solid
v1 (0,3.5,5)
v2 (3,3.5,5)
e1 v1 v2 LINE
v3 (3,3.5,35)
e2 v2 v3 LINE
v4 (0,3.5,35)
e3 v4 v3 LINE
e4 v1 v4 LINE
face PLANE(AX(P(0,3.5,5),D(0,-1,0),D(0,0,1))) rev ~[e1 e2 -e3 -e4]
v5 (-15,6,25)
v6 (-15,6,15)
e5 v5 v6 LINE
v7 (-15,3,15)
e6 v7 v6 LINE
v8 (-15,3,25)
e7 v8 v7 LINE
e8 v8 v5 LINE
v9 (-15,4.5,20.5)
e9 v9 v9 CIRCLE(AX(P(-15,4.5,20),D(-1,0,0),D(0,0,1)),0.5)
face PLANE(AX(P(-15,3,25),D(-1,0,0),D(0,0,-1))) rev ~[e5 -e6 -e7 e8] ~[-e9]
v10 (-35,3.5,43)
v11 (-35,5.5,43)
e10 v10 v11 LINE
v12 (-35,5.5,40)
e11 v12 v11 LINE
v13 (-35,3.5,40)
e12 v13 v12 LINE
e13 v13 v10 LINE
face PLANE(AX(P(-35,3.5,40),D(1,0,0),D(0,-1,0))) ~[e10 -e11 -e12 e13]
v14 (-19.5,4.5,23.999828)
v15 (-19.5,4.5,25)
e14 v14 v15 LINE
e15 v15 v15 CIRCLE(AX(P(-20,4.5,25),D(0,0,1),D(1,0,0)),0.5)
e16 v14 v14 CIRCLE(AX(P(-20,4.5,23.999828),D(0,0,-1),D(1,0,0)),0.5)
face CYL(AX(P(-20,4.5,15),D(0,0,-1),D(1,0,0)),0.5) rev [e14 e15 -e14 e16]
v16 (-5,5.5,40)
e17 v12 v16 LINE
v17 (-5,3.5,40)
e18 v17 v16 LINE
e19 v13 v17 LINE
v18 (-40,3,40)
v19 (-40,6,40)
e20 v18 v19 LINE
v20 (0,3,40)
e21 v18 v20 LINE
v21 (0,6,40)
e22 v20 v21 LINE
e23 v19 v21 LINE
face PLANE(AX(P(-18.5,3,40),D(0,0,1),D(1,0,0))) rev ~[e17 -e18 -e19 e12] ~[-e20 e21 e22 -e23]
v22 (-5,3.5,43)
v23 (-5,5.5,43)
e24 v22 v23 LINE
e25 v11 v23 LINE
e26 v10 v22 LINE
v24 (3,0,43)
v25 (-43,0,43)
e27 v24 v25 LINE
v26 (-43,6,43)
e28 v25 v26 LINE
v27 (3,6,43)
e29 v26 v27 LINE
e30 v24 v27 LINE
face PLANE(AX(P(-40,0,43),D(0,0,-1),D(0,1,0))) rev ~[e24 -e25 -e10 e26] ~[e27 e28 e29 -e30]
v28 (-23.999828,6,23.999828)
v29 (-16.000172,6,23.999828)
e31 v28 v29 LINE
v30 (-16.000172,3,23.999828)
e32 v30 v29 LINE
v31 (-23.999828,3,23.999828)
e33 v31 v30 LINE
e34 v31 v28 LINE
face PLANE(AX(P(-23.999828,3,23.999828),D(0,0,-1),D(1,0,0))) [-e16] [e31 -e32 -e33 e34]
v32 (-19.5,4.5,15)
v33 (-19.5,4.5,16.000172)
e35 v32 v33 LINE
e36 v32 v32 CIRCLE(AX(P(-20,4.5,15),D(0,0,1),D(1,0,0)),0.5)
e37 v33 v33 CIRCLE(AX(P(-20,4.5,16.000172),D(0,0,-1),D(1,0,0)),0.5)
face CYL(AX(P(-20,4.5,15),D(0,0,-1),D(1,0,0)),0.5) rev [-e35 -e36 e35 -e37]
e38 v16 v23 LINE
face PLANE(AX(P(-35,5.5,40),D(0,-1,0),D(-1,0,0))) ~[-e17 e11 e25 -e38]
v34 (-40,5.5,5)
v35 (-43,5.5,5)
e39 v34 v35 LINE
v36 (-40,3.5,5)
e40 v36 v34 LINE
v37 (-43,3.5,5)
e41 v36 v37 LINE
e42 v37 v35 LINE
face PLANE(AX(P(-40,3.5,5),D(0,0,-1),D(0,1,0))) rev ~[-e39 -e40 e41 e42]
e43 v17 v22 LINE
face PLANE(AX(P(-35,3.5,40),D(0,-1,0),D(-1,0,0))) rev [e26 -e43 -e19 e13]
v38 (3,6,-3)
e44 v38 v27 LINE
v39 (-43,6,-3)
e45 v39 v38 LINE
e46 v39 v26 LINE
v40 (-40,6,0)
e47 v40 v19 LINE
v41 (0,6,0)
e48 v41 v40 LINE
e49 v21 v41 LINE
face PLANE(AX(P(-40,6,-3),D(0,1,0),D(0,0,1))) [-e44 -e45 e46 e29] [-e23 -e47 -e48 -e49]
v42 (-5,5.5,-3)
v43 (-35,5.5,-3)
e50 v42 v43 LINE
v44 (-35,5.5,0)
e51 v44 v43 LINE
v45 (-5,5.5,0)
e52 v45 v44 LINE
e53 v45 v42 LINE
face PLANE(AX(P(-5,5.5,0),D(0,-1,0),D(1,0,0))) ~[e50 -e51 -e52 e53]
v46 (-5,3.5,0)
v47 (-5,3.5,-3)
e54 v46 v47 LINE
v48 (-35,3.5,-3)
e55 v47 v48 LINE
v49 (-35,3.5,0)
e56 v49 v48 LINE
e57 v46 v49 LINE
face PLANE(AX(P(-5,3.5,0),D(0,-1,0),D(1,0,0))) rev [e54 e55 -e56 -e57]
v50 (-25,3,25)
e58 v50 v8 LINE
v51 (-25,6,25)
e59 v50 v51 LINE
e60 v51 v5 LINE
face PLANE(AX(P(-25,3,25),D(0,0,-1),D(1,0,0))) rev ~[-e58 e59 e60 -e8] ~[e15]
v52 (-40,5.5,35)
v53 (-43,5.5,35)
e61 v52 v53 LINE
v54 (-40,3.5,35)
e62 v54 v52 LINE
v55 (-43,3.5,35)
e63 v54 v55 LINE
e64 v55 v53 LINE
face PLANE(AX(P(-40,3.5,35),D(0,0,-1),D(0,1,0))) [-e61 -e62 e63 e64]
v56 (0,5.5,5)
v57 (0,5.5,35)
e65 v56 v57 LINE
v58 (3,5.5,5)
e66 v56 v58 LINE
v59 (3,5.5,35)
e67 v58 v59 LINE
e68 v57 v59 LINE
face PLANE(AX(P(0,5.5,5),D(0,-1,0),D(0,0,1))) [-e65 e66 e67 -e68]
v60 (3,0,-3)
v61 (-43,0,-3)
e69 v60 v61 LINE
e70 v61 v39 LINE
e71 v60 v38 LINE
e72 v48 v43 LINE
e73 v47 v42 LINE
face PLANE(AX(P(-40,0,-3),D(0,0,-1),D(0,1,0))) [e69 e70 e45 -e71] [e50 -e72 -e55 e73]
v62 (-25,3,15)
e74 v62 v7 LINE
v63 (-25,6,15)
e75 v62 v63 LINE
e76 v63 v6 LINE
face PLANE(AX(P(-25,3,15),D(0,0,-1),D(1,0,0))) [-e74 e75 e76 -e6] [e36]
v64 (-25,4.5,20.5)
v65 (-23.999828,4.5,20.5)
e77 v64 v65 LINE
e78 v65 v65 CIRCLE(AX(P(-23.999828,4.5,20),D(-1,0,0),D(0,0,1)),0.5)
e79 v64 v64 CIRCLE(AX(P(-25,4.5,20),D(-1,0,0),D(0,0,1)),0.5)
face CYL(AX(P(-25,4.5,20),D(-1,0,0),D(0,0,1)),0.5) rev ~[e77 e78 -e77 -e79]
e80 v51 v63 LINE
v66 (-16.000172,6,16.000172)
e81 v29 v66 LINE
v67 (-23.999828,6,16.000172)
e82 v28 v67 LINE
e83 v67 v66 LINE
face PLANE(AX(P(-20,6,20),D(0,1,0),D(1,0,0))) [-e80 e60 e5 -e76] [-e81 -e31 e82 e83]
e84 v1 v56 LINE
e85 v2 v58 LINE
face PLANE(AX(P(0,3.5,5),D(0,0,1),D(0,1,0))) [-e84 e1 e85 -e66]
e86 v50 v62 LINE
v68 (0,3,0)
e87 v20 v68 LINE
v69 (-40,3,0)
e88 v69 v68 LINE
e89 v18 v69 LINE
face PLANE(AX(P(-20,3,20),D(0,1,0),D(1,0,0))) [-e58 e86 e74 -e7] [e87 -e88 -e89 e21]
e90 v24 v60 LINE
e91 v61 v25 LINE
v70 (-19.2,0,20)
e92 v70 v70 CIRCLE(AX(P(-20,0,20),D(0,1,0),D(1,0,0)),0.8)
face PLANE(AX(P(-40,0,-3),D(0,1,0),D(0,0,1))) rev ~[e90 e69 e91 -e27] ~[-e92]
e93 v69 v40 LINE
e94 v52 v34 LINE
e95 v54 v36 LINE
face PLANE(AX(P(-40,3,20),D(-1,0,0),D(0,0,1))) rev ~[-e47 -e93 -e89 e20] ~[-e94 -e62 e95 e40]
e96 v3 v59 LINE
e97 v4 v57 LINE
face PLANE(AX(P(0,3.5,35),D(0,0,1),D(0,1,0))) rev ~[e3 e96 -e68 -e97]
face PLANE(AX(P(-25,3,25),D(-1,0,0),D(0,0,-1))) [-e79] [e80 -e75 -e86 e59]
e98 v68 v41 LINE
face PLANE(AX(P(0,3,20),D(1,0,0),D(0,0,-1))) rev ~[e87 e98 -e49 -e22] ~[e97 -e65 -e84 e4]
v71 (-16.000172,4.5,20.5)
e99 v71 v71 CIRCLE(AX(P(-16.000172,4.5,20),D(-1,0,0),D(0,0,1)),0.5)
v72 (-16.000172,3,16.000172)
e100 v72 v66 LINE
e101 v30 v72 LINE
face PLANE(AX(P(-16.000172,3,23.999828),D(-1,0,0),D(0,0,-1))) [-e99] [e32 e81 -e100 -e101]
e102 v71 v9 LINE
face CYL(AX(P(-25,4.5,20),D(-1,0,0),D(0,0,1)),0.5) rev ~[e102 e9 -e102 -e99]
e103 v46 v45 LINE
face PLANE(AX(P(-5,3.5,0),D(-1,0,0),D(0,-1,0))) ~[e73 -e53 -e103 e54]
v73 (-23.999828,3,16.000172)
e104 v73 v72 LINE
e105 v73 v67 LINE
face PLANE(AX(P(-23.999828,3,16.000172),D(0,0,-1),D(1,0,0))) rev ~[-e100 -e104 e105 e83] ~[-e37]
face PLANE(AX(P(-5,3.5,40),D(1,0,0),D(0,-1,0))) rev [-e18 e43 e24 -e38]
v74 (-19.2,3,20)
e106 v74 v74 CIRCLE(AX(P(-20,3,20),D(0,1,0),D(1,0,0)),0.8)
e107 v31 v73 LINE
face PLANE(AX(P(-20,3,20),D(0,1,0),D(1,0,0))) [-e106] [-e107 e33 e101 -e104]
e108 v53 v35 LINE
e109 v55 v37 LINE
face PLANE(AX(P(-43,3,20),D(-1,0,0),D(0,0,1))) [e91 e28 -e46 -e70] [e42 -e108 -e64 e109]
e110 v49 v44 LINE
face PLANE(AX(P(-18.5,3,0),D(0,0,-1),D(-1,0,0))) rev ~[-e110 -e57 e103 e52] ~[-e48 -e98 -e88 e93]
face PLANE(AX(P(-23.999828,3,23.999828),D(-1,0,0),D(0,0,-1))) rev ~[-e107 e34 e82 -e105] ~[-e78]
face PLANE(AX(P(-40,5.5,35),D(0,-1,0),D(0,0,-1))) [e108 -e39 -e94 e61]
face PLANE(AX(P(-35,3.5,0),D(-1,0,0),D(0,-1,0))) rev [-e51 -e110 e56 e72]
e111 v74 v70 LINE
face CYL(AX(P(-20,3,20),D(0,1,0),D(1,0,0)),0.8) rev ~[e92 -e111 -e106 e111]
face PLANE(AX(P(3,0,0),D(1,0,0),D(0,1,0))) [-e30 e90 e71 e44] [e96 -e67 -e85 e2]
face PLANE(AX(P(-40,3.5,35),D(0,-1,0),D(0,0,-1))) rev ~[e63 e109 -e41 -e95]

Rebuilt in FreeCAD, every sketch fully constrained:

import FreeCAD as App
import Part
import Sketcher

V = App.Vector


def add_polygon(sketch, points):
    """Adds a closed chain of lines whose ends are joined by coincident constraints."""
    first, n = sketch.GeometryCount, len(points)
    for a, b in zip(points, points[1:] + points[:1]):
        sketch.addGeometry(Part.LineSegment(App.Vector(*a, 0), App.Vector(*b, 0)), False)
    for i in range(n):
        sketch.addConstraint(Sketcher.Constraint("Coincident", first + i, 2, first + (i + 1) % n, 1))

doc = App.newDocument("Part")
params = doc.addObject("Spreadsheet::Sheet", "Params")
for row, (alias, value) in enumerate([
    ("sketch1_width", "40 mm"),
    ("pad1_length", "3 mm"),
    ("sketch2_width", "6 mm"),
    ("sketch2_height", "40 mm"),
    ("pad2_length", "3 mm"),
    ("sketch3_width", "43 mm"),
    ("sketch3_height", "6 mm"),
    ("pad3_length", "3 mm"),
    ("sketch4_width", "43 mm"),
    ("sketch4_height", "6 mm"),
    ("pad4_length", "3 mm"),
    ("sketch5_width", "6 mm"),
    ("sketch5_height", "46 mm"),
    ("pad5_length", "3 mm"),
    ("sketch6_width", "2 mm"),
    ("sketch6_height", "30 mm"),
    ("pocket1_length", "3 mm"),
    ("sketch7_width", "2 mm"),
    ("sketch7_height", "30 mm"),
    ("pocket2_length", "3 mm"),
    ("sketch8_width", "10 mm"),
    ("pad6_length", "3 mm"),
    ("sketch9_diameter", "1.6 mm"),
    ("pocket3_length", "3 mm"),
    ("sketch10_diameter", "1 mm"),
    ("pocket4_length", "10 mm"),
], start=1):
    params.set(f"A{row}", alias)
    params.set(f"B{row}", "=" + value)
    params.setAlias(f"B{row}", alias)

body = doc.addObject("PartDesign::Body", "Body")

sketch1 = body.newObject("Sketcher::SketchObject", "Sketch")
sketch1.AttachmentSupport = (doc.getObject("XZ_Plane"), [""])
sketch1.MapMode = "FlatFace"
add_polygon(sketch1, [(-40, 0), (-40, 40), (0, 40), (0, 0)])
sketch1.addConstraint([
    Sketcher.Constraint("Vertical", 0),
    Sketcher.Constraint("Horizontal", 1),
    Sketcher.Constraint("Vertical", 2),
    Sketcher.Constraint("Horizontal", 3),
    Sketcher.Constraint("Coincident", 2, 2, -1, 1),
    Sketcher.Constraint("Equal", 3, 0),
    Sketcher.Constraint("DistanceX", 1, 1, 1, 2, 40.0),
])
sketch1.setExpression("Constraints[10]", "Params.sketch1_width")
pad1 = body.newObject("PartDesign::Pad", "Pad")
pad1.Profile = sketch1
pad1.setExpression("Length", "Params.pad1_length")
pad1.Reversed = True
body2 = doc.addObject("PartDesign::Body", "Body001")

sketch2 = body2.newObject("Sketcher::SketchObject", "Sketch001")
sketch2.AttachmentSupport = (doc.getObject("YZ_Plane001"), [""])
sketch2.MapMode = "FlatFace"
add_polygon(sketch2, [(6, 40), (0, 40), (0, 0), (6, 0)])
sketch2.addConstraint([
    Sketcher.Constraint("Horizontal", 0),
    Sketcher.Constraint("Vertical", 1),
    Sketcher.Constraint("Horizontal", 2),
    Sketcher.Constraint("Vertical", 3),
    Sketcher.Constraint("Coincident", 1, 2, -1, 1),
    Sketcher.Constraint("DistanceX", 0, 2, 0, 1, 6.0),
    Sketcher.Constraint("DistanceY", 1, 2, 1, 1, 40.0),
])
sketch2.setExpression("Constraints[9]", "Params.sketch2_width")
sketch2.setExpression("Constraints[10]", "Params.sketch2_height")
pad2 = body2.newObject("PartDesign::Pad", "Pad001")
pad2.Profile = sketch2
pad2.setExpression("Length", "Params.pad2_length")
doc.recompute()

boolean = body.newObject("PartDesign::Boolean", "Boolean")
boolean.Type = "Fuse"
boolean.addObjects([body2])

sketch3 = body.newObject("Sketcher::SketchObject", "Sketch002")
sketch3.AttachmentSupport = (doc.getObject("XY_Plane"), [""])
sketch3.MapMode = "FlatFace"
sketch3.AttachmentOffset = App.Placement(V(0, 0, 40), App.Rotation())
add_polygon(sketch3, [(-40, 6), (-40, 0), (3, 0), (3, 6)])
sketch3.addConstraint([
    Sketcher.Constraint("Vertical", 0),
    Sketcher.Constraint("Horizontal", 1),
    Sketcher.Constraint("Vertical", 2),
    Sketcher.Constraint("Horizontal", 3),
    Sketcher.Constraint("PointOnObject", 0, 2, -1),
    Sketcher.Constraint("DistanceX", 1, 1, 1, 2, 43.0),
    Sketcher.Constraint("DistanceY", 0, 2, 0, 1, 6.0),
    Sketcher.Constraint("DistanceX", 0, 2, -1, 1, 40.0),
])
sketch3.setExpression("Constraints[9]", "Params.sketch3_width")
sketch3.setExpression("Constraints[10]", "Params.sketch3_height")
pad3 = body.newObject("PartDesign::Pad", "Pad002")
pad3.Profile = sketch3
pad3.setExpression("Length", "Params.pad3_length")

sketch4 = body.newObject("Sketcher::SketchObject", "Sketch003")
sketch4.AttachmentSupport = (doc.getObject("XY_Plane"), [""])
sketch4.MapMode = "FlatFace"
add_polygon(sketch4, [(3, 6), (3, 0), (-40, 0), (-40, 6)])
sketch4.addConstraint([
    Sketcher.Constraint("Vertical", 0),
    Sketcher.Constraint("Horizontal", 1),
    Sketcher.Constraint("Vertical", 2),
    Sketcher.Constraint("Horizontal", 3),
    Sketcher.Constraint("PointOnObject", 0, 2, -1),
    Sketcher.Constraint("DistanceX", 1, 2, 1, 1, 43.0),
    Sketcher.Constraint("DistanceY", 0, 2, 0, 1, 6.0),
    Sketcher.Constraint("DistanceX", -1, 1, 0, 2, 3.0),
])
sketch4.setExpression("Constraints[9]", "Params.sketch4_width")
sketch4.setExpression("Constraints[10]", "Params.sketch4_height")
pad4 = body.newObject("PartDesign::Pad", "Pad003")
pad4.Profile = sketch4
pad4.setExpression("Length", "Params.pad4_length")
pad4.Reversed = True

sketch5 = body.newObject("Sketcher::SketchObject", "Sketch004")
sketch5.AttachmentSupport = (doc.getObject("YZ_Plane"), [""])
sketch5.MapMode = "FlatFace"
sketch5.AttachmentOffset = App.Placement(V(0, 0, -40), App.Rotation())
add_polygon(sketch5, [(6, -3), (0, -3), (0, 43), (6, 43)])
sketch5.addConstraint([
    Sketcher.Constraint("Horizontal", 0),
    Sketcher.Constraint("Vertical", 1),
    Sketcher.Constraint("Horizontal", 2),
    Sketcher.Constraint("Vertical", 3),
    Sketcher.Constraint("PointOnObject", 0, 2, -2),
    Sketcher.Constraint("DistanceX", 0, 2, 0, 1, 6.0),
    Sketcher.Constraint("DistanceY", 1, 1, 1, 2, 46.0),
    Sketcher.Constraint("DistanceY", 0, 2, -1, 1, 3.0),
])
sketch5.setExpression("Constraints[9]", "Params.sketch5_width")
sketch5.setExpression("Constraints[10]", "Params.sketch5_height")
pad5 = body.newObject("PartDesign::Pad", "Pad004")
pad5.Profile = sketch5
pad5.setExpression("Length", "Params.pad5_length")
pad5.Reversed = True

sketch6 = body.newObject("Sketcher::SketchObject", "Sketch005")
sketch6.AttachmentSupport = (doc.getObject("YZ_Plane"), [""])
sketch6.MapMode = "FlatFace"
add_polygon(sketch6, [(5.5, 5), (3.5, 5), (3.5, 35), (5.5, 35)])
sketch6.addConstraint([
    Sketcher.Constraint("Horizontal", 0),
    Sketcher.Constraint("Vertical", 1),
    Sketcher.Constraint("Horizontal", 2),
    Sketcher.Constraint("Vertical", 3),
    Sketcher.Constraint("DistanceX", 0, 2, 0, 1, 2.0),
    Sketcher.Constraint("DistanceY", 1, 1, 1, 2, 30.0),
    Sketcher.Constraint("DistanceY", -1, 1, 0, 2, 5.0),
    Sketcher.Constraint("DistanceX", -1, 1, 0, 2, 3.5),
])
sketch6.setExpression("Constraints[8]", "Params.sketch6_width")
sketch6.setExpression("Constraints[9]", "Params.sketch6_height")
pocket1 = body.newObject("PartDesign::Pocket", "Pocket")
pocket1.Profile = sketch6
pocket1.setExpression("Length", "Params.pocket1_length")
pocket1.Reversed = True
doc.recompute()

datumplane = body.newObject("PartDesign::Plane", "DatumPlane")
datumplane.Placement = App.Placement(V(0, 0, 0), App.Rotation(V(-0.707106781, 0, 0.707106781), V(0, -1, 0), V(0.707106781, 0, 0.707106781), "ZXY"))
mirrored = body.newObject("PartDesign::Mirrored", "Mirrored")
mirrored.Originals = [pocket1]
mirrored.MirrorPlane = (datumplane, [""])
body.Tip = mirrored
doc.recompute()

datumplane2 = body.newObject("PartDesign::Plane", "DatumPlane001")
datumplane2.Placement = App.Placement(V(-20, 0, 20), App.Rotation(V(0.707106781, 0, 0.707106781), V(0, -1, 0), V(0.707106781, 0, -0.707106781), "ZXY"))
mirrored2 = body.newObject("PartDesign::Mirrored", "Mirrored001")
mirrored2.Originals = [pocket1]
mirrored2.MirrorPlane = (datumplane2, [""])
body.Tip = mirrored2

sketch7 = body.newObject("Sketcher::SketchObject", "Sketch006")
sketch7.AttachmentSupport = (doc.getObject("YZ_Plane"), [""])
sketch7.MapMode = "FlatFace"
sketch7.AttachmentOffset = App.Placement(V(0, 0, -40), App.Rotation())
add_polygon(sketch7, [(5.5, 35), (3.5, 35), (3.5, 5), (5.5, 5)])
sketch7.addConstraint([
    Sketcher.Constraint("Horizontal", 0),
    Sketcher.Constraint("Vertical", 1),
    Sketcher.Constraint("Horizontal", 2),
    Sketcher.Constraint("Vertical", 3),
    Sketcher.Constraint("DistanceX", 0, 2, 0, 1, 2.0),
    Sketcher.Constraint("DistanceY", 1, 2, 1, 1, 30.0),
    Sketcher.Constraint("DistanceY", -1, 1, 0, 2, 35.0),
    Sketcher.Constraint("DistanceX", -1, 1, 0, 2, 3.5),
])
sketch7.setExpression("Constraints[8]", "Params.sketch7_width")
sketch7.setExpression("Constraints[9]", "Params.sketch7_height")
pocket2 = body.newObject("PartDesign::Pocket", "Pocket001")
pocket2.Profile = sketch7
pocket2.setExpression("Length", "Params.pocket2_length")

sketch8 = body.newObject("Sketcher::SketchObject", "Sketch007")
sketch8.AttachmentSupport = (doc.getObject("XZ_Plane"), [""])
sketch8.MapMode = "FlatFace"
sketch8.AttachmentOffset = App.Placement(V(0, 0, -3), App.Rotation())
add_polygon(sketch8, [(-25, 15), (-25, 25), (-15, 25), (-15, 15)])
add_polygon(sketch8, [(-16.000172, 23.999828), (-23.999828, 23.999828), (-23.999828, 16.000172), (-16.000172, 16.000172)])
sketch8.addConstraint([
    Sketcher.Constraint("Vertical", 0),
    Sketcher.Constraint("Horizontal", 1),
    Sketcher.Constraint("Vertical", 2),
    Sketcher.Constraint("Horizontal", 3),
    Sketcher.Constraint("Horizontal", 4),
    Sketcher.Constraint("Vertical", 5),
    Sketcher.Constraint("Horizontal", 6),
    Sketcher.Constraint("Vertical", 7),
    Sketcher.Constraint("Equal", 3, 0),
    Sketcher.Constraint("Equal", 6, 5),
    Sketcher.Constraint("DistanceX", 1, 1, 1, 2, 10.0),
    Sketcher.Constraint("DistanceX", 0, 2, -1, 1, 25.0),
    Sketcher.Constraint("DistanceY", -1, 1, 0, 2, 25.0),
    Sketcher.Constraint("DistanceX", 4, 2, 4, 1, 7.999656),
    Sketcher.Constraint("DistanceX", 4, 2, -1, 1, 23.999828),
    Sketcher.Constraint("DistanceY", -1, 1, 4, 2, 23.999828),
])
sketch8.setExpression("Constraints[18]", "Params.sketch8_width")
pad6 = body.newObject("PartDesign::Pad", "Pad005")
pad6.Profile = sketch8
pad6.setExpression("Length", "Params.pad6_length")
pad6.Reversed = True

sketch9 = body.newObject("Sketcher::SketchObject", "Sketch008")
sketch9.AttachmentSupport = (doc.getObject("XZ_Plane"), [""])
sketch9.MapMode = "FlatFace"
sketch9.AttachmentOffset = App.Placement(V(0, 0, -3), App.Rotation())
sketch9.addGeometry(Part.Circle(V(-20, 20, 0), V(0, 0, 1), 0.8), False)
sketch9.addConstraint([
    Sketcher.Constraint("Diameter", 0, 1.6),
    Sketcher.Constraint("DistanceX", 0, 3, -1, 1, 20.0),
    Sketcher.Constraint("DistanceY", -1, 1, 0, 3, 20.0),
])
sketch9.setExpression("Constraints[0]", "Params.sketch9_diameter")
pocket3 = body.newObject("PartDesign::Pocket", "Pocket002")
pocket3.Profile = sketch9
pocket3.setExpression("Length", "Params.pocket3_length")
pocket3.Reversed = True

sketch10 = body.newObject("Sketcher::SketchObject", "Sketch009")
sketch10.AttachmentSupport = (doc.getObject("YZ_Plane"), [""])
sketch10.MapMode = "FlatFace"
sketch10.AttachmentOffset = App.Placement(V(0, 0, -25), App.Rotation())
sketch10.addGeometry(Part.Circle(V(4.5, 20, 0), V(0, 0, 1), 0.5), False)
sketch10.addConstraint([
    Sketcher.Constraint("Diameter", 0, 1.0),
    Sketcher.Constraint("DistanceY", -1, 1, 0, 3, 20.0),
    Sketcher.Constraint("DistanceX", -1, 1, 0, 3, 4.5),
])
sketch10.setExpression("Constraints[0]", "Params.sketch10_diameter")
pocket4 = body.newObject("PartDesign::Pocket", "Pocket003")
pocket4.Profile = sketch10
pocket4.setExpression("Length", "Params.pocket4_length")
pocket4.Reversed = True
doc.recompute()

datumplane3 = body.newObject("PartDesign::Plane", "DatumPlane002")
datumplane3.Placement = App.Placement(V(-20, 0, 20), App.Rotation(V(0.707106781, 0, 0.707106781), V(0, -1, 0), V(0.707106781, 0, -0.707106781), "ZXY"))
mirrored3 = body.newObject("PartDesign::Mirrored", "Mirrored002")
mirrored3.Originals = [pocket4]
mirrored3.MirrorPlane = (datumplane3, [""])
body.Tip = mirrored3

doc.recompute()
